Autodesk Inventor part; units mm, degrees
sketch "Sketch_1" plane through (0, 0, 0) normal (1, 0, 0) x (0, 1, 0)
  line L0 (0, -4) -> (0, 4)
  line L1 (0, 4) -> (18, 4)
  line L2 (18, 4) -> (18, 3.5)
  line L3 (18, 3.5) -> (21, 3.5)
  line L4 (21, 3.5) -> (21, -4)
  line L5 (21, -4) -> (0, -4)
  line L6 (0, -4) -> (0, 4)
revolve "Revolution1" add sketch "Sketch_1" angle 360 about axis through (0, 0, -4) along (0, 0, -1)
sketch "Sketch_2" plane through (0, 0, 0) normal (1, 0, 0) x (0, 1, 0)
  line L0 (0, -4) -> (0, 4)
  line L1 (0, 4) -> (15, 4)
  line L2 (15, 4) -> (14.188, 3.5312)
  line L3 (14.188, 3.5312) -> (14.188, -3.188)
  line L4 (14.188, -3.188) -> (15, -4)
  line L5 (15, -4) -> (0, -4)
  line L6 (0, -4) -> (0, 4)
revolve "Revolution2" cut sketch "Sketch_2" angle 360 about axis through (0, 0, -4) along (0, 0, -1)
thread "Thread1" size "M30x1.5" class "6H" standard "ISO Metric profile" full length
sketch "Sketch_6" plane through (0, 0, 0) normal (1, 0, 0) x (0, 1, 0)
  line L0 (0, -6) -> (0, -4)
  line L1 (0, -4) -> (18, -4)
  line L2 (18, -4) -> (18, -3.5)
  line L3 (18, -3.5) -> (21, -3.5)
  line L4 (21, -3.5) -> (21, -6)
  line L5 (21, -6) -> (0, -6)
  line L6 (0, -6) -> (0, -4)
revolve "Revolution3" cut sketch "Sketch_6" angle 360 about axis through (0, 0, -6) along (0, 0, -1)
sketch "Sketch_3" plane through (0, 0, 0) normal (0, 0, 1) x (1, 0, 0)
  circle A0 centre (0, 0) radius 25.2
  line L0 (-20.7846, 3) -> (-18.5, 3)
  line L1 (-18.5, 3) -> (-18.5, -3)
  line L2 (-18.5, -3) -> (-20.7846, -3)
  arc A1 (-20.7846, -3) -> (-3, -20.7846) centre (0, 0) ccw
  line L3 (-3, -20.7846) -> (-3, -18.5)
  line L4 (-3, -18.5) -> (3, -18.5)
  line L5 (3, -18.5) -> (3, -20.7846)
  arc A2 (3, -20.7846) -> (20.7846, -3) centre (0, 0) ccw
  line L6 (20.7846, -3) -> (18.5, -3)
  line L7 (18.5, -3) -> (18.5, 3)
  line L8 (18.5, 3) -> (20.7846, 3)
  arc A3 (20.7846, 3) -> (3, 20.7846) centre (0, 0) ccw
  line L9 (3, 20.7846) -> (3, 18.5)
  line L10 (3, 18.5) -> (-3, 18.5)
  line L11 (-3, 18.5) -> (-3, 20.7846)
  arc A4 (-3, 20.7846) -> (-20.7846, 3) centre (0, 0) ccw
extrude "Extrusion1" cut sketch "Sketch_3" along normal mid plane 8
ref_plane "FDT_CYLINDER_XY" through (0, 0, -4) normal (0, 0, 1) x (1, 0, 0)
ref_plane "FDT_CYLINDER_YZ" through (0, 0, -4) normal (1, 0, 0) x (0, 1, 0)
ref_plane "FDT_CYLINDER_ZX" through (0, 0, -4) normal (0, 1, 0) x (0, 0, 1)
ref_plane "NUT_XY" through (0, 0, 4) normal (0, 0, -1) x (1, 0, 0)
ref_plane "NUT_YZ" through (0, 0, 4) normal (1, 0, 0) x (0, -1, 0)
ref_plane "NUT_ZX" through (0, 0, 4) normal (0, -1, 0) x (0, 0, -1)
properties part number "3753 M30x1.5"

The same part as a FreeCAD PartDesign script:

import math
import FreeCAD as App
import Part
import Sketcher

V = App.Vector
Q = App.Units.Quantity

doc = App.newDocument("Part")
body = doc.addObject("PartDesign::Body", "Body")

sketch1 = body.newObject("Sketcher::SketchObject", "Sketch")
sketch1.AttachmentSupport = (doc.getObject("YZ_Plane"), [""])
sketch1.MapMode = "FlatFace"
sketch1.addGeometry(Part.LineSegment(V(0, 4, 0), V(0, -4, 0)), False)
sketch1.addGeometry(Part.LineSegment(V(0, -4, 0), V(21, -4, 0)), False)
sketch1.addGeometry(Part.LineSegment(V(21, -4, 0), V(21, 3.5, 0)), False)
sketch1.addGeometry(Part.LineSegment(V(21, 3.5, 0), V(18, 3.5, 0)), False)
sketch1.addGeometry(Part.LineSegment(V(18, 3.5, 0), V(18, 4, 0)), False)
sketch1.addGeometry(Part.LineSegment(V(18, 4, 0), V(0, 4, 0)), False)
sketch1.addConstraint(Sketcher.Constraint("Coincident", 0, 2, 1, 1))
sketch1.addConstraint(Sketcher.Constraint("Coincident", 1, 2, 2, 1))
sketch1.addConstraint(Sketcher.Constraint("Coincident", 2, 2, 3, 1))
sketch1.addConstraint(Sketcher.Constraint("Coincident", 3, 2, 4, 1))
sketch1.addConstraint(Sketcher.Constraint("Coincident", 4, 2, 5, 1))
sketch1.addConstraint(Sketcher.Constraint("Coincident", 5, 2, 0, 1))
sketch1.addConstraint(Sketcher.Constraint("Vertical", 0))
sketch1.addConstraint(Sketcher.Constraint("Horizontal", 1))
sketch1.addConstraint(Sketcher.Constraint("Vertical", 2))
sketch1.addConstraint(Sketcher.Constraint("Horizontal", 3))
sketch1.addConstraint(Sketcher.Constraint("Vertical", 4))
sketch1.addConstraint(Sketcher.Constraint("Horizontal", 5))
sketch1.addConstraint(Sketcher.Constraint("Symmetric", 0, 2, 5, 2, -1, 1))
sketch1.addConstraint(Sketcher.Constraint("DistanceX", 1, 1, 1, 2, Q("21 mm")))
sketch1.addConstraint(Sketcher.Constraint("DistanceX", 3, 2, 3, 1, Q("3 mm")))
sketch1.addConstraint(Sketcher.Constraint("DistanceY", 0, 2, 0, 1, Q("8 mm")))
sketch1.addConstraint(Sketcher.Constraint("DistanceY", 2, 1, 2, 2, Q("7.5 mm")))
revolution = body.newObject("PartDesign::Revolution", "Revolution")
revolution.Profile = sketch1
revolution.ReferenceAxis = (sketch1, ["V_Axis"])
revolution.Angle = 360

sketch2 = body.newObject("Sketcher::SketchObject", "Sketch001")
sketch2.AttachmentSupport = (doc.getObject("YZ_Plane"), [""])
sketch2.MapMode = "FlatFace"
sketch2.addGeometry(Part.LineSegment(V(0, 4, 0), V(0, -4, 0)), False)
sketch2.addGeometry(Part.LineSegment(V(0, -4, 0), V(15, -4, 0)), False)
sketch2.addGeometry(Part.LineSegment(V(15, -4, 0), V(14.2, -3.2, 0)), False)
sketch2.addGeometry(Part.LineSegment(V(14.2, -3.2, 0), V(14.2, 3.5, 0)), False)
sketch2.addGeometry(Part.LineSegment(V(14.2, 3.5, 0), V(15, 4, 0)), False)
sketch2.addGeometry(Part.LineSegment(V(15, 4, 0), V(0, 4, 0)), False)
sketch2.addConstraint(Sketcher.Constraint("Coincident", 0, 2, 1, 1))
sketch2.addConstraint(Sketcher.Constraint("Coincident", 1, 2, 2, 1))
sketch2.addConstraint(Sketcher.Constraint("Coincident", 2, 2, 3, 1))
sketch2.addConstraint(Sketcher.Constraint("Coincident", 3, 2, 4, 1))
sketch2.addConstraint(Sketcher.Constraint("Coincident", 4, 2, 5, 1))
sketch2.addConstraint(Sketcher.Constraint("Coincident", 5, 2, 0, 1))
sketch2.addConstraint(Sketcher.Constraint("Vertical", 0))
sketch2.addConstraint(Sketcher.Constraint("Horizontal", 1))
sketch2.addConstraint(Sketcher.Constraint("Vertical", 3))
sketch2.addConstraint(Sketcher.Constraint("Horizontal", 5))
sketch2.addConstraint(Sketcher.Constraint("Symmetric", 0, 2, 5, 2, -1, 1))
sketch2.addConstraint(Sketcher.Constraint("Vertical", 1, 2, 4, 2))
sketch2.addConstraint(Sketcher.Constraint("DistanceX", 1, 1, 1, 2, Q("15 mm")))
sketch2.addConstraint(Sketcher.Constraint("DistanceY", 0, 2, 0, 1, Q("8 mm")))
sketch2.addConstraint(Sketcher.Constraint("Angle", 2, Q("135 deg")))
sketch2.addConstraint(Sketcher.Constraint("Angle", 4, Q("29.9996 deg")))
sketch2.addConstraint(Sketcher.Constraint("DistanceY", 3, 1, 3, 2, Q("6.7192 mm")))
groove = body.newObject("PartDesign::Groove", "Groove")
groove.Profile = sketch2
groove.ReferenceAxis = (sketch2, ["V_Axis"])
groove.Angle = 360

sketch3 = body.newObject("Sketcher::SketchObject", "Sketch002")
sketch3.AttachmentSupport = (doc.getObject("YZ_Plane"), [""])
sketch3.MapMode = "FlatFace"
sketch3.addGeometry(Part.LineSegment(V(0, -4, 0), V(0, -6, 0)), False)
sketch3.addGeometry(Part.LineSegment(V(0, -6, 0), V(21, -6, 0)), False)
sketch3.addGeometry(Part.LineSegment(V(21, -6, 0), V(21, -3.5, 0)), False)
sketch3.addGeometry(Part.LineSegment(V(21, -3.5, 0), V(18, -3.5, 0)), False)
sketch3.addGeometry(Part.LineSegment(V(18, -3.5, 0), V(18, -4, 0)), False)
sketch3.addGeometry(Part.LineSegment(V(18, -4, 0), V(0, -4, 0)), False)
sketch3.addConstraint(Sketcher.Constraint("Coincident", 0, 2, 1, 1))
sketch3.addConstraint(Sketcher.Constraint("Coincident", 1, 2, 2, 1))
sketch3.addConstraint(Sketcher.Constraint("Coincident", 2, 2, 3, 1))
sketch3.addConstraint(Sketcher.Constraint("Coincident", 3, 2, 4, 1))
sketch3.addConstraint(Sketcher.Constraint("Coincident", 4, 2, 5, 1))
sketch3.addConstraint(Sketcher.Constraint("Coincident", 5, 2, 0, 1))
sketch3.addConstraint(Sketcher.Constraint("Vertical", 0))
sketch3.addConstraint(Sketcher.Constraint("Horizontal", 1))
sketch3.addConstraint(Sketcher.Constraint("Vertical", 2))
sketch3.addConstraint(Sketcher.Constraint("Horizontal", 3))
sketch3.addConstraint(Sketcher.Constraint("Vertical", 4))
sketch3.addConstraint(Sketcher.Constraint("Horizontal", 5))
sketch3.addConstraint(Sketcher.Constraint("PointOnObject", 0, 2, -2))
sketch3.addConstraint(Sketcher.Constraint("DistanceX", 1, 1, 1, 2, Q("21 mm")))
sketch3.addConstraint(Sketcher.Constraint("DistanceX", 3, 2, 3, 1, Q("3 mm")))
sketch3.addConstraint(Sketcher.Constraint("DistanceY", 0, 2, 0, 1, Q("2 mm")))
sketch3.addConstraint(Sketcher.Constraint("DistanceY", 2, 1, 2, 2, Q("2.5 mm")))
sketch3.addConstraint(Sketcher.Constraint("DistanceY", 0, 2, -1, 1, Q("6 mm")))
groove2 = body.newObject("PartDesign::Groove", "Groove001")
groove2.Profile = sketch3
groove2.ReferenceAxis = (sketch3, ["V_Axis"])
groove2.Angle = 360

sketch4 = body.newObject("Sketcher::SketchObject", "Sketch003")
sketch4.AttachmentSupport = (doc.getObject("XY_Plane"), [""])
sketch4.MapMode = "FlatFace"
sketch4.addGeometry(Part.Circle(V(0, 0, 0), V(0, 0, 1), 25.2), False)
sketch4.addGeometry(Part.LineSegment(V(-18.5, 3, 0), V(-20.8, 3, 0)), False)
sketch4.addGeometry(Part.ArcOfCircle(Part.Circle(V(0, 0, 0), V(0, 0, 1), 21), math.radians(98), math.radians(172)), False)
sketch4.addGeometry(Part.LineSegment(V(-3, 20.8, 0), V(-3, 18.5, 0)), False)
sketch4.addGeometry(Part.LineSegment(V(-3, 18.5, 0), V(3, 18.5, 0)), False)
sketch4.addGeometry(Part.LineSegment(V(3, 18.5, 0), V(3, 20.8, 0)), False)
sketch4.addGeometry(Part.ArcOfCircle(Part.Circle(V(0, 0, 0), V(0, 0, 1), 21), math.radians(8), math.radians(82)), False)
sketch4.addGeometry(Part.LineSegment(V(20.8, 3, 0), V(18.5, 3, 0)), False)
sketch4.addGeometry(Part.LineSegment(V(18.5, 3, 0), V(18.5, -3, 0)), False)
sketch4.addGeometry(Part.LineSegment(V(18.5, -3, 0), V(20.8, -3, 0)), False)
sketch4.addGeometry(Part.ArcOfCircle(Part.Circle(V(0, 0, 0), V(0, 0, 1), 21), math.radians(-82), math.radians(-8)), False)
sketch4.addGeometry(Part.LineSegment(V(3, -20.8, 0), V(3, -18.5, 0)), False)
sketch4.addGeometry(Part.LineSegment(V(3, -18.5, 0), V(-3, -18.5, 0)), False)
sketch4.addGeometry(Part.LineSegment(V(-3, -18.5, 0), V(-3, -20.8, 0)), False)
sketch4.addGeometry(Part.ArcOfCircle(Part.Circle(V(0, 0, 0), V(0, 0, 1), 21), math.radians(-172), math.radians(-98)), False)
sketch4.addGeometry(Part.LineSegment(V(-20.8, -3, 0), V(-18.5, -3, 0)), False)
sketch4.addGeometry(Part.LineSegment(V(-18.5, -3, 0), V(-18.5, 3, 0)), False)
sketch4.addConstraint(Sketcher.Constraint("Coincident", 1, 2, 2, 2))
sketch4.addConstraint(Sketcher.Constraint("Coincident", 2, 1, 3, 1))
sketch4.addConstraint(Sketcher.Constraint("Coincident", 3, 2, 4, 1))
sketch4.addConstraint(Sketcher.Constraint("Coincident", 4, 2, 5, 1))
sketch4.addConstraint(Sketcher.Constraint("Coincident", 5, 2, 6, 2))
sketch4.addConstraint(Sketcher.Constraint("Coincident", 6, 1, 7, 1))
sketch4.addConstraint(Sketcher.Constraint("Coincident", 7, 2, 8, 1))
sketch4.addConstraint(Sketcher.Constraint("Coincident", 8, 2, 9, 1))
sketch4.addConstraint(Sketcher.Constraint("Coincident", 9, 2, 10, 2))
sketch4.addConstraint(Sketcher.Constraint("Coincident", 10, 1, 11, 1))
sketch4.addConstraint(Sketcher.Constraint("Coincident", 11, 2, 12, 1))
sketch4.addConstraint(Sketcher.Constraint("Coincident", 12, 2, 13, 1))
sketch4.addConstraint(Sketcher.Constraint("Coincident", 13, 2, 14, 2))
sketch4.addConstraint(Sketcher.Constraint("Coincident", 14, 1, 15, 1))
sketch4.addConstraint(Sketcher.Constraint("Coincident", 15, 2, 16, 1))
sketch4.addConstraint(Sketcher.Constraint("Coincident", 16, 2, 1, 1))
sketch4.addConstraint(Sketcher.Constraint("Horizontal", 1))
sketch4.addConstraint(Sketcher.Constraint("Vertical", 3))
sketch4.addConstraint(Sketcher.Constraint("Horizontal", 4))
sketch4.addConstraint(Sketcher.Constraint("Vertical", 5))
sketch4.addConstraint(Sketcher.Constraint("Horizontal", 7))
sketch4.addConstraint(Sketcher.Constraint("Vertical", 8))
sketch4.addConstraint(Sketcher.Constraint("Horizontal", 9))
sketch4.addConstraint(Sketcher.Constraint("Vertical", 11))
sketch4.addConstraint(Sketcher.Constraint("Horizontal", 12))
sketch4.addConstraint(Sketcher.Constraint("Vertical", 13))
sketch4.addConstraint(Sketcher.Constraint("Horizontal", 15))
sketch4.addConstraint(Sketcher.Constraint("Vertical", 16))
sketch4.addConstraint(Sketcher.Constraint("Coincident", 0, 3, -1, 1))
sketch4.addConstraint(Sketcher.Constraint("Coincident", 2, 3, -1, 1))
sketch4.addConstraint(Sketcher.Constraint("Coincident", 6, 3, -1, 1))
sketch4.addConstraint(Sketcher.Constraint("Coincident", 10, 3, -1, 1))
sketch4.addConstraint(Sketcher.Constraint("Coincident", 14, 3, -1, 1))
sketch4.addConstraint(Sketcher.Constraint("Equal", 2, 6))
sketch4.addConstraint(Sketcher.Constraint("Equal", 6, 10))
sketch4.addConstraint(Sketcher.Constraint("Equal", 10, 14))
sketch4.addConstraint(Sketcher.Constraint("Symmetric", 3, 2, 11, 2, -1, 1))
sketch4.addConstraint(Sketcher.Constraint("Symmetric", 7, 2, 15, 2, -1, 1))
sketch4.addConstraint(Sketcher.Constraint("Horizontal", 2, 1, 5, 2))
sketch4.addConstraint(Sketcher.Constraint("Horizontal", 1, 2, 6, 1))
sketch4.addConstraint(Sketcher.Constraint("Horizontal", 10, 1, 13, 2))
sketch4.addConstraint(Sketcher.Constraint("Horizontal", 9, 2, 14, 1))
sketch4.addConstraint(Sketcher.Constraint("Equal", 15, 3))
sketch4.addConstraint(Sketcher.Constraint("Equal", 12, 8))
sketch4.addConstraint(Sketcher.Constraint("Radius", 2, Q("21 mm")))
sketch4.addConstraint(Sketcher.Constraint("Diameter", 0, Q("50.4 mm")))
sketch4.addConstraint(Sketcher.Constraint("DistanceX", 4, 1, 4, 2, Q("6 mm")))
sketch4.addConstraint(Sketcher.Constraint("DistanceY", -1, 1, 3, 2, Q("18.5 mm")))
pocket1 = body.newObject("PartDesign::Pocket", "Pocket")
pocket1.Profile = sketch4
pocket1.Length = 8
pocket1.Midplane = True

doc.recompute()
